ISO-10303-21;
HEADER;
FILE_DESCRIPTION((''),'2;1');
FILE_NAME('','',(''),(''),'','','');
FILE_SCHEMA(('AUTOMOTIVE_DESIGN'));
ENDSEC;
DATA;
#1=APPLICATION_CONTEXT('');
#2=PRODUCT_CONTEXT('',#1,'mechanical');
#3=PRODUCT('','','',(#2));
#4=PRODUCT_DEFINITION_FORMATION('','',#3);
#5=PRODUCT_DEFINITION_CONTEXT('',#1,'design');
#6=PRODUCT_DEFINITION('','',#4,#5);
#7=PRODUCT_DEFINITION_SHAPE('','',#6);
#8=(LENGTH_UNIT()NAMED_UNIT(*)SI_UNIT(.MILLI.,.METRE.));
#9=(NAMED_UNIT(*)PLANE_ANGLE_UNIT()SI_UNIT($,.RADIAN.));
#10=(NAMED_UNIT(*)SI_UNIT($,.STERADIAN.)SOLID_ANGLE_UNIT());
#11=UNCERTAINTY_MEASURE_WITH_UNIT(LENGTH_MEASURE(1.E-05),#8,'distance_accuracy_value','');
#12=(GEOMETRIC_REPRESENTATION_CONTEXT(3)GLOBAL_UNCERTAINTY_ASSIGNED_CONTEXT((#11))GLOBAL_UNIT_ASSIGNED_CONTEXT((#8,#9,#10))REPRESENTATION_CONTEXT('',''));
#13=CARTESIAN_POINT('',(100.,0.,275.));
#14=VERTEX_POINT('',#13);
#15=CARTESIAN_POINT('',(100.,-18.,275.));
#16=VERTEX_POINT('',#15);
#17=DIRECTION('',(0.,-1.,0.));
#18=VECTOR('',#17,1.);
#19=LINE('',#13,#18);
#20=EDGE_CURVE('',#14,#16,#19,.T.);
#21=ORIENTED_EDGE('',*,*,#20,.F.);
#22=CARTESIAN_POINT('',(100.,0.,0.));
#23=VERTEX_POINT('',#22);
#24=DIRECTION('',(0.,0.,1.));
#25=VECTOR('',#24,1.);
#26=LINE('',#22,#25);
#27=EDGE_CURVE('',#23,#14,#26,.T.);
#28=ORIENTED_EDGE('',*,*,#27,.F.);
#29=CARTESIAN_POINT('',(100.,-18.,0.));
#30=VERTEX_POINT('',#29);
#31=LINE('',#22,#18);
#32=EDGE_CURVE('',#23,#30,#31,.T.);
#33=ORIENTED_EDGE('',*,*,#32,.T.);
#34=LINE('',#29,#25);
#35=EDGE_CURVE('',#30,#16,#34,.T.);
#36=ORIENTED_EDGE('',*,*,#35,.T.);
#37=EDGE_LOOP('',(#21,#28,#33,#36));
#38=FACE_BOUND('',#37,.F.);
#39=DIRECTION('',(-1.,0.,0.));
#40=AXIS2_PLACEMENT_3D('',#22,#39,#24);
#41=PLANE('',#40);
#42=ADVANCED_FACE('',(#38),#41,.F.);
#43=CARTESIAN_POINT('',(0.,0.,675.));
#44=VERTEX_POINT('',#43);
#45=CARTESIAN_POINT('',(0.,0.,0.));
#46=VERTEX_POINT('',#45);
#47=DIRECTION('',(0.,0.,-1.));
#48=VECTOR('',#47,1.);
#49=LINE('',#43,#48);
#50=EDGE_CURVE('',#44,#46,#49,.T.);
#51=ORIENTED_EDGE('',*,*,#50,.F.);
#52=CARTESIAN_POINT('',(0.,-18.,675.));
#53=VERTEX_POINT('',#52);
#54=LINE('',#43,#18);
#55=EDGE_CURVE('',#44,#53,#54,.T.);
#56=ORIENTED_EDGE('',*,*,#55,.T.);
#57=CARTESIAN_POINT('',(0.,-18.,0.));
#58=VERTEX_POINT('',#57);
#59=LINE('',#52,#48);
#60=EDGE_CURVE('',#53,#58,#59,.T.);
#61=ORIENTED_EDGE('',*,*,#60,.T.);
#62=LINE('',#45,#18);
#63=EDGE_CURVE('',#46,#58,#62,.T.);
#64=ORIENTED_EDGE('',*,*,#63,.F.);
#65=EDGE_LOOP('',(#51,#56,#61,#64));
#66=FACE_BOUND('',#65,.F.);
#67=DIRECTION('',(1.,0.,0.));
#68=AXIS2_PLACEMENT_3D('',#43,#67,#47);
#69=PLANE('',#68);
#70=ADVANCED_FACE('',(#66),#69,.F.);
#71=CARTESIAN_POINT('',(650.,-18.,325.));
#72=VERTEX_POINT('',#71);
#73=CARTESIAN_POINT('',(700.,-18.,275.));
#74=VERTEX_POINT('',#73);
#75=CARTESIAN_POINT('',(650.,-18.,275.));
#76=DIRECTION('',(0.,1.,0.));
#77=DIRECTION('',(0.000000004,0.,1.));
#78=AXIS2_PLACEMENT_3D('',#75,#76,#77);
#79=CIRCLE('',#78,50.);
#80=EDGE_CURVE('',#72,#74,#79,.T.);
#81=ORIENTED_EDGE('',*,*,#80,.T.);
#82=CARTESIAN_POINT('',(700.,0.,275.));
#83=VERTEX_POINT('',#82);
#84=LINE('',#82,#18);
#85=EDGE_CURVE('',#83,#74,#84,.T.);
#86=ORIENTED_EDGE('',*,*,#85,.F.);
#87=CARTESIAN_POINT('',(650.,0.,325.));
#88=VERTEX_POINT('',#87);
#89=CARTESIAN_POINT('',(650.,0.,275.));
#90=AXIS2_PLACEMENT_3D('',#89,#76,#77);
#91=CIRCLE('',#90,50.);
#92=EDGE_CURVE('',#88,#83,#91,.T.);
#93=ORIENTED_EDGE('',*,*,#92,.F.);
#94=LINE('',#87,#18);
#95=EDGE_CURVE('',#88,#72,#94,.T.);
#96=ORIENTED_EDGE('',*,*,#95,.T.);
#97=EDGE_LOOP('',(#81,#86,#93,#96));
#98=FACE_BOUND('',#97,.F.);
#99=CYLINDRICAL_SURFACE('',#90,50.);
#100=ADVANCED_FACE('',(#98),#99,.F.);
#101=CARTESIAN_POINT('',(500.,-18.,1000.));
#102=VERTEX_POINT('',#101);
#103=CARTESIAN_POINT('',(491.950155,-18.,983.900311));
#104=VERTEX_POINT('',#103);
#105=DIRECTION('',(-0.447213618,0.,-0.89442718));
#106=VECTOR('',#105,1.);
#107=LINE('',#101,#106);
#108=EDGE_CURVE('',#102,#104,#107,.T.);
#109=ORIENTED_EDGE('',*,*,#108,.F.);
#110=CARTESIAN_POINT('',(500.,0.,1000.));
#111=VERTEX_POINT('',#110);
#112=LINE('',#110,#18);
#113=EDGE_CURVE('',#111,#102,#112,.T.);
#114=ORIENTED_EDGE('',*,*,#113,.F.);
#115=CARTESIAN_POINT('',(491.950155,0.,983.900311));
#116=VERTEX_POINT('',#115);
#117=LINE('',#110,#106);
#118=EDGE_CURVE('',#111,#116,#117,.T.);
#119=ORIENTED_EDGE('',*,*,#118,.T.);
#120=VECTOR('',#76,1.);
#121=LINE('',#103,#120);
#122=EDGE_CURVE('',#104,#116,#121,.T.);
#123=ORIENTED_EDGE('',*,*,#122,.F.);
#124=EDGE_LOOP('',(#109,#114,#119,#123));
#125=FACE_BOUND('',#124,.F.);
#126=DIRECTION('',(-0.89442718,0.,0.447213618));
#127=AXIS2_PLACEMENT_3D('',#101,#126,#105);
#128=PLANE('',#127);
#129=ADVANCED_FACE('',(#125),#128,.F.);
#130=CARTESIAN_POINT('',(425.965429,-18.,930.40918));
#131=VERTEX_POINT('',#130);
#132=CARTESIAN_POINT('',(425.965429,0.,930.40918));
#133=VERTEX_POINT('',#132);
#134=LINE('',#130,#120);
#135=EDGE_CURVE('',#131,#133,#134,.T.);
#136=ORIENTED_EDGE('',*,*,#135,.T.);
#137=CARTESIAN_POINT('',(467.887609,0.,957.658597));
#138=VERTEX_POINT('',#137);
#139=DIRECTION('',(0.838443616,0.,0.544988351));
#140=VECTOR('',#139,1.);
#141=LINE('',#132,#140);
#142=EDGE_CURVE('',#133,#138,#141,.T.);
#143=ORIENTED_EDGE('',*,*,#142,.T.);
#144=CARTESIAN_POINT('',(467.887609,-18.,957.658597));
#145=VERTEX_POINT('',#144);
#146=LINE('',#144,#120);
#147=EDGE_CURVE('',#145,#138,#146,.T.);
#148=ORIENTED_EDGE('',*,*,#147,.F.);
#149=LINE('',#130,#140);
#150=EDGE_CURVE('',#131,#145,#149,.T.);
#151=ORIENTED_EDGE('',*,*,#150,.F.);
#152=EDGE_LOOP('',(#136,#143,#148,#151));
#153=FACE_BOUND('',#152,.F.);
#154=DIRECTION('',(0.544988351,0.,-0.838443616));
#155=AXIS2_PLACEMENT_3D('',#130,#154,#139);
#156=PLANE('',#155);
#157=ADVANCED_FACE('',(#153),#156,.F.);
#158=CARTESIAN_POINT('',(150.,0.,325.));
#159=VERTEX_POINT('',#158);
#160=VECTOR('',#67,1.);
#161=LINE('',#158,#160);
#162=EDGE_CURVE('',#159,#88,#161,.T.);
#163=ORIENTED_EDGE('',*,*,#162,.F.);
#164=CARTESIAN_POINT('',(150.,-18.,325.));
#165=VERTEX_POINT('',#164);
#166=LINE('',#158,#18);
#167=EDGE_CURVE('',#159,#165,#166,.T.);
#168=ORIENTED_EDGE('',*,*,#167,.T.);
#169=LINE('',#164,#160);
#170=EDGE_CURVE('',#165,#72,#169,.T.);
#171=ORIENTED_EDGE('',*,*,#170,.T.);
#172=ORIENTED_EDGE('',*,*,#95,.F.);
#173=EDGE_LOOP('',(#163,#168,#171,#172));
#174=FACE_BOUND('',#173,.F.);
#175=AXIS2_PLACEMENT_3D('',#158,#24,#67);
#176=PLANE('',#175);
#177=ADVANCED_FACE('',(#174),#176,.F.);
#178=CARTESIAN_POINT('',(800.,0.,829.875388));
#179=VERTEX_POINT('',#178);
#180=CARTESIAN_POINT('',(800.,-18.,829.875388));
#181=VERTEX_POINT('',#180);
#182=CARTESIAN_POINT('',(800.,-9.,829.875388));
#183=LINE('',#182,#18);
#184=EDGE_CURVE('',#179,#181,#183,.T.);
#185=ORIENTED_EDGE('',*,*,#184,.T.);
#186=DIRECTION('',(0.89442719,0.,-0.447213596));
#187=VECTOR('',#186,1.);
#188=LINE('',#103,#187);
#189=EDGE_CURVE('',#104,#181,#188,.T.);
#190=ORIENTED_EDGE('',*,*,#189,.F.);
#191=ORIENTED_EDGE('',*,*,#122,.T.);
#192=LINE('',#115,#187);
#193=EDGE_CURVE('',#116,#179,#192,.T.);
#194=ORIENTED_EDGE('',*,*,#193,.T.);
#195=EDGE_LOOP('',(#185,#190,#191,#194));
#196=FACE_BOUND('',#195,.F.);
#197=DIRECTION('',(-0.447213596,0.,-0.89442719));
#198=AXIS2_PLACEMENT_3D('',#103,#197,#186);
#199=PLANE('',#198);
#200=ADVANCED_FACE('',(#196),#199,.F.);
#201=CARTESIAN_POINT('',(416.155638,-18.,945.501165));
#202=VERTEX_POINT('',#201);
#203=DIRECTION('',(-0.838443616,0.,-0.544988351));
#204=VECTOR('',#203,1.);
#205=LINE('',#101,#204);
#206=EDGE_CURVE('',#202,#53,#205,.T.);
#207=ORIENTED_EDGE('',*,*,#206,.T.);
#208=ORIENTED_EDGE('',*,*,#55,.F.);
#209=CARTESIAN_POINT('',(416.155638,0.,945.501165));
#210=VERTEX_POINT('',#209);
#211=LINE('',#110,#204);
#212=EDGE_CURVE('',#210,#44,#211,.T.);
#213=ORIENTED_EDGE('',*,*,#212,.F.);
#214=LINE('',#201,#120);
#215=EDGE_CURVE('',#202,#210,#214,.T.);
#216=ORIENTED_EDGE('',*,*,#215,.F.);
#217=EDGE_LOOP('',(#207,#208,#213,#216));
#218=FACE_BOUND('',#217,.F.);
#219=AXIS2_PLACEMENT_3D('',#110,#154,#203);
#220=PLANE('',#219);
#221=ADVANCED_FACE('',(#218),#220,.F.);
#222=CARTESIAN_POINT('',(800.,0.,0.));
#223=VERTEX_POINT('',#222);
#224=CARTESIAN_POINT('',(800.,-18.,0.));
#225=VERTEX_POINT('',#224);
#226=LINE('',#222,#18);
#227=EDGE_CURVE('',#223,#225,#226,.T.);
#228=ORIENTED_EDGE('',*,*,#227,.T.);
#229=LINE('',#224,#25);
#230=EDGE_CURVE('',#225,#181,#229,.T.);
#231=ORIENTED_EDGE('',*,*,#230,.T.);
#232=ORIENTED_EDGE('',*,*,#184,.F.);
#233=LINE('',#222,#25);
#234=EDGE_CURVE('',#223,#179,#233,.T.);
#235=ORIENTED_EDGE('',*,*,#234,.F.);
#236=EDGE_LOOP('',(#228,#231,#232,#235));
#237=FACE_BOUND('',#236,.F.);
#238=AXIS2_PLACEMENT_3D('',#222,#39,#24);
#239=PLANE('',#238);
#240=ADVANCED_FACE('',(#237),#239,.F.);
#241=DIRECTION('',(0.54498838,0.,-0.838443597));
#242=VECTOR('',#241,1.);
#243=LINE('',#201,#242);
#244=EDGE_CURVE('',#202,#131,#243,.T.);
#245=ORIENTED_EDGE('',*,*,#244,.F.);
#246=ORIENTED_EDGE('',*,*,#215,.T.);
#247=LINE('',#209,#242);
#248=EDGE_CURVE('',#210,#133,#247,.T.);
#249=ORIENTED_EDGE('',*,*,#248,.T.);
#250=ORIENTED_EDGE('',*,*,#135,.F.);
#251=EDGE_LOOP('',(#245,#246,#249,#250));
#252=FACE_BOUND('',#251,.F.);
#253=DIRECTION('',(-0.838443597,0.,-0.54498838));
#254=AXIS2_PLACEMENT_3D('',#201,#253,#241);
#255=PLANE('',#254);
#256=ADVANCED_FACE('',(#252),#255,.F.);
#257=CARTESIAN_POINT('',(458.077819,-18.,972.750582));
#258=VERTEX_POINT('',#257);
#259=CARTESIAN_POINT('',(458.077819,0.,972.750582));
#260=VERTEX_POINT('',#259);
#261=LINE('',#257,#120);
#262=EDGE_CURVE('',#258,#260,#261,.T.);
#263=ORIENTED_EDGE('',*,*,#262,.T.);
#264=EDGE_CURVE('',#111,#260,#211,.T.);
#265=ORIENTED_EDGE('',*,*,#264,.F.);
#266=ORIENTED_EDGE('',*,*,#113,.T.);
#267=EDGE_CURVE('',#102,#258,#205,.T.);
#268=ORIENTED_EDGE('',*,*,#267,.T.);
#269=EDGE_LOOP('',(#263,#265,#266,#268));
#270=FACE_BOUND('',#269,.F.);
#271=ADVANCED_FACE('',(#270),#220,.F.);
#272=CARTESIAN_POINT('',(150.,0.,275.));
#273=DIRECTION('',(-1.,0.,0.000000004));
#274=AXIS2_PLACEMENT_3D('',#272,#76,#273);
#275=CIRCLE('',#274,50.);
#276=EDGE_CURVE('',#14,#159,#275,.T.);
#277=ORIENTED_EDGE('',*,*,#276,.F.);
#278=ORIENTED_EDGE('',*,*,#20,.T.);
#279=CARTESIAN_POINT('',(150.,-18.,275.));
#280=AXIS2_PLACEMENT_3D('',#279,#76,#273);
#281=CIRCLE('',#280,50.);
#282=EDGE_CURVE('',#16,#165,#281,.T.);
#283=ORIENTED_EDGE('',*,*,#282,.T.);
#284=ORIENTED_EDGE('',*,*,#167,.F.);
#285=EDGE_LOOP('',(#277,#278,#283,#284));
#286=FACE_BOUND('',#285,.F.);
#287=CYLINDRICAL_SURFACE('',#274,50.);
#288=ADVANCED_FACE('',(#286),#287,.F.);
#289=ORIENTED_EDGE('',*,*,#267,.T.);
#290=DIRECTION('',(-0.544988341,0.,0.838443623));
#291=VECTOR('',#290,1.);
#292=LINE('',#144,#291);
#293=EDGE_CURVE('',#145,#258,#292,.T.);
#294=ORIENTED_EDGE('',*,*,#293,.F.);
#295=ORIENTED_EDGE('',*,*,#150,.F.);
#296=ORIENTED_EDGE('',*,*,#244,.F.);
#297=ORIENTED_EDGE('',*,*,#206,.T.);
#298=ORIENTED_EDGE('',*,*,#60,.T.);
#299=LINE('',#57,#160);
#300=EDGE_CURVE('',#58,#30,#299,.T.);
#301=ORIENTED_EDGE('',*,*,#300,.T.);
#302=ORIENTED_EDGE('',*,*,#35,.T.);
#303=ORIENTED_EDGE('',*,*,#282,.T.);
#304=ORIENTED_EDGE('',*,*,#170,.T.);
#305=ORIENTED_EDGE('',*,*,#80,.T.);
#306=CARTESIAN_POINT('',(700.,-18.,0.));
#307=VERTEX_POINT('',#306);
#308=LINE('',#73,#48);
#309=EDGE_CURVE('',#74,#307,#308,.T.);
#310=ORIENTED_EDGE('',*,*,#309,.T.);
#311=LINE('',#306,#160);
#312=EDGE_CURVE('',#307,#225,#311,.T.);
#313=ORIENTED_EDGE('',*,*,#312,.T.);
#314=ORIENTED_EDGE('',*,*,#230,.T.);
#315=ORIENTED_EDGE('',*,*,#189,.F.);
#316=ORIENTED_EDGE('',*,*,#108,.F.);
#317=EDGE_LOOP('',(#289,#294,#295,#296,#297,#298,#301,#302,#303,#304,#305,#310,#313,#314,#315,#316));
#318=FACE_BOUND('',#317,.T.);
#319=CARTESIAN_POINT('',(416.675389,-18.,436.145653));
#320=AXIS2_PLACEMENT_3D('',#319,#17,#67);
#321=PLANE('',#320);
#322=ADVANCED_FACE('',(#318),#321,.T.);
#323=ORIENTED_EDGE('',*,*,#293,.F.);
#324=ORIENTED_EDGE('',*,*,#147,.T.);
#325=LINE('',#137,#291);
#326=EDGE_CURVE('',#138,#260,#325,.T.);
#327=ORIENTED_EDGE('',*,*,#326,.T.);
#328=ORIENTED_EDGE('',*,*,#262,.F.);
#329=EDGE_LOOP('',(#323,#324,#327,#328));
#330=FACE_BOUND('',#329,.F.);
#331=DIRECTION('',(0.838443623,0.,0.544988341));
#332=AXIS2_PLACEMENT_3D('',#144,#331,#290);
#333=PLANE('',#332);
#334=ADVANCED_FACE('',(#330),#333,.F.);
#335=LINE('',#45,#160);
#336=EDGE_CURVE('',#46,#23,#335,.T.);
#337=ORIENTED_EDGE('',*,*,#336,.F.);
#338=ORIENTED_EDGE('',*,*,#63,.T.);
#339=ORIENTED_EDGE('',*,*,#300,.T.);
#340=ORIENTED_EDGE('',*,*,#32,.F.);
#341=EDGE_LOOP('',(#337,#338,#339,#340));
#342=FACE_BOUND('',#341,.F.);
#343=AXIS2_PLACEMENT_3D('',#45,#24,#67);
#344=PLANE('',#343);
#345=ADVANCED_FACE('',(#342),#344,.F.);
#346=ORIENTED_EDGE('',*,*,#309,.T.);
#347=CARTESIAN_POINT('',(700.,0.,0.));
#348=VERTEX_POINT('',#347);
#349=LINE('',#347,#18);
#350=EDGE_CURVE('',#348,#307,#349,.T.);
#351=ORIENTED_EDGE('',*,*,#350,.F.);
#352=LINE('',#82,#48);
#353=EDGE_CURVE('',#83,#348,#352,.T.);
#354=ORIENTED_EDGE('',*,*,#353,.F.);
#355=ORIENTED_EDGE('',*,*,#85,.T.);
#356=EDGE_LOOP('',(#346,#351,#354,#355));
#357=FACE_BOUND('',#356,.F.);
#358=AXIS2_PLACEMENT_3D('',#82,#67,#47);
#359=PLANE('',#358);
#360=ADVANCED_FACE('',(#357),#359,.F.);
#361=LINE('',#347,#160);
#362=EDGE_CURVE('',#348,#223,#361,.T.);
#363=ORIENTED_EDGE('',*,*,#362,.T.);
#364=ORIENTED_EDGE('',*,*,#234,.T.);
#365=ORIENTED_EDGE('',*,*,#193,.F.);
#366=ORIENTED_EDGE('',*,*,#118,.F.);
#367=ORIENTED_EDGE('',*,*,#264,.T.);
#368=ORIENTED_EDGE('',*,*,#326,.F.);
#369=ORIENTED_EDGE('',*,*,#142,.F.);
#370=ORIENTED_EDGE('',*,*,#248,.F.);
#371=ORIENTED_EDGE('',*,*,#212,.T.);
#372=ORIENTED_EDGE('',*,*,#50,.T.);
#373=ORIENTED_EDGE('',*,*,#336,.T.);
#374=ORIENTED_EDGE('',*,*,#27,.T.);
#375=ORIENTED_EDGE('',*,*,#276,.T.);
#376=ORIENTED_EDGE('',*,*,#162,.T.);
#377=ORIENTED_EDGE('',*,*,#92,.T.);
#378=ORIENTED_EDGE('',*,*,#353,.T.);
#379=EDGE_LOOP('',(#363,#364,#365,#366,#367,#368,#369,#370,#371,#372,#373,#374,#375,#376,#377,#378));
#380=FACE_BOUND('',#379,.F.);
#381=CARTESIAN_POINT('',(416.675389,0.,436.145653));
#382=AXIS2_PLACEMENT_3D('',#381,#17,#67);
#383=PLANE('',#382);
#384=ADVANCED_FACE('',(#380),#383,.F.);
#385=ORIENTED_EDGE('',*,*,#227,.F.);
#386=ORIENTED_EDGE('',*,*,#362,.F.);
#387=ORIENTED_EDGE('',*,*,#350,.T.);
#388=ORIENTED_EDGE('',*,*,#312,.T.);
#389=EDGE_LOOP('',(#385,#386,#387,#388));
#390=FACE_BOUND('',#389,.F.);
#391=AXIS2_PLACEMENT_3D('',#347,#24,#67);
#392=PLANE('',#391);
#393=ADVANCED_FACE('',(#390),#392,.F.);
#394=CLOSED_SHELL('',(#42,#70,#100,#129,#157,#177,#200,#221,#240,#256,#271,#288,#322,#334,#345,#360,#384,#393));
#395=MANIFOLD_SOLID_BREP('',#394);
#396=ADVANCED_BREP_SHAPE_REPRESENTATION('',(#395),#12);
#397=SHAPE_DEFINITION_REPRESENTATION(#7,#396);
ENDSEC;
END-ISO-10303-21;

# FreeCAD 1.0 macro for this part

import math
import FreeCAD as App
import Part
import Sketcher

doc = App.newDocument("Part")
body = doc.addObject("PartDesign::Body", "Body")

# Sketch on XZ plane
sketch1 = body.newObject("Sketcher::SketchObject", "Sketch")
sketch1.AttachmentSupport = (doc.getObject("XZ_Plane"), [""])
sketch1.MapMode = "FlatFace"
sketch1.addGeometry([
    Part.LineSegment(App.Vector(0, 675, 0), App.Vector(0, 0, 0)),  # 0
    Part.LineSegment(App.Vector(0, 0, 0), App.Vector(100, 0, 0)),  # 1
    Part.LineSegment(App.Vector(100, 0, 0), App.Vector(100, 275, 0)),  # 2
    Part.ArcOfCircle(Part.Circle(App.Vector(150, 275, 0), App.Vector(0, 0, 1), 50), math.radians(90), math.radians(180)),  # 3
    Part.LineSegment(App.Vector(150, 325, 0), App.Vector(650, 325, 0)),  # 4
    Part.ArcOfCircle(Part.Circle(App.Vector(650, 275, 0), App.Vector(0, 0, 1), 50), math.radians(0), math.radians(90)),  # 5
    Part.LineSegment(App.Vector(700, 275, 0), App.Vector(700, 0, 0)),  # 6
    Part.LineSegment(App.Vector(700, 0, 0), App.Vector(800, 0, 0)),  # 7
    Part.LineSegment(App.Vector(800, 0, 0), App.Vector(800, 850, 0)),  # 8
    Part.LineSegment(App.Vector(800, 850, 0), App.Vector(500, 1000, 0)),  # 9
    Part.LineSegment(App.Vector(500, 1000, 0), App.Vector(0, 675, 0)),  # 10
], False)
sketch1.addConstraint([
    Sketcher.Constraint("Coincident", 0, 2, 1, 1),
    Sketcher.Constraint("Coincident", 1, 2, 2, 1),
    Sketcher.Constraint("Tangent", 2, 2, 3, 2),
    Sketcher.Constraint("Tangent", 3, 1, 4, 1),
    Sketcher.Constraint("Tangent", 4, 2, 5, 2),
    Sketcher.Constraint("Tangent", 5, 1, 6, 1),
    Sketcher.Constraint("Coincident", 6, 2, 7, 1),
    Sketcher.Constraint("Coincident", 7, 2, 8, 1),
    Sketcher.Constraint("Coincident", 8, 2, 9, 1),
    Sketcher.Constraint("Coincident", 9, 2, 10, 1),
    Sketcher.Constraint("Coincident", 10, 2, 0, 1),
    Sketcher.Constraint("Vertical", 0),
    Sketcher.Constraint("Horizontal", 1),
    Sketcher.Constraint("Vertical", 2),
    Sketcher.Constraint("Horizontal", 4),
    Sketcher.Constraint("Vertical", 6),
    Sketcher.Constraint("Horizontal", 7),
    Sketcher.Constraint("Vertical", 8),
    Sketcher.Constraint("Coincident", 0, 2, -1, 1),
    Sketcher.Constraint("Equal", 3, 5),
    Sketcher.Constraint("PointOnObject", 6, 2, -1),
    Sketcher.Constraint("Equal", 1, 7),
    Sketcher.Constraint("Radius", 3, 50.0),
    Sketcher.Constraint("DistanceX", 1, 1, 1, 2, 100.0),
    Sketcher.Constraint("DistanceX", 4, 1, 4, 2, 500.0),
    Sketcher.Constraint("DistanceY", 0, 2, 0, 1, 675.0),
    Sketcher.Constraint("DistanceY", 2, 1, 2, 2, 275.0),
    Sketcher.Constraint("DistanceY", 8, 1, 8, 2, 850.0),
    Sketcher.Constraint("DistanceX", -1, 1, 9, 2, 500.0),
    Sketcher.Constraint("DistanceY", -1, 1, 9, 2, 1000.0),
])
pad1 = body.newObject("PartDesign::Pad", "Pad")
pad1.Profile = sketch1
pad1.Length = 18

# Sketch on XZ plane
sketch2 = body.newObject("Sketcher::SketchObject", "Sketch001")
sketch2.AttachmentSupport = (doc.getObject("XZ_Plane"), [""])
sketch2.MapMode = "FlatFace"
sketch2.AttachmentOffset = App.Placement(App.Vector(0, 0, 18), App.Rotation())
sketch2.addGeometry([
    Part.LineSegment(App.Vector(458, 973, 0), App.Vector(416, 946, 0)),
    Part.LineSegment(App.Vector(416, 946, 0), App.Vector(426, 930, 0)),
    Part.LineSegment(App.Vector(426, 930, 0), App.Vector(468, 958, 0)),
    Part.LineSegment(App.Vector(468, 958, 0), App.Vector(458, 973, 0)),
], False)
sketch2.addConstraint([
    Sketcher.Constraint("Coincident", 0, 2, 1, 1),
    Sketcher.Constraint("Coincident", 1, 2, 2, 1),
    Sketcher.Constraint("Coincident", 2, 2, 3, 1),
    Sketcher.Constraint("Coincident", 3, 2, 0, 1),
    Sketcher.Constraint("Perpendicular", 0, 1),
    Sketcher.Constraint("Perpendicular", 1, 2),
    Sketcher.Constraint("Perpendicular", 2, 3),
    Sketcher.Constraint("Distance", 0, 50.0),
    Sketcher.Constraint("Distance", 1, 18.0),
    Sketcher.Constraint("DistanceX", -1, 1, 0, 2, 416.155638),
    Sketcher.Constraint("DistanceX", -1, 1, 1, 2, 425.965429),
    Sketcher.Constraint("DistanceY", -1, 1, 1, 2, 930.40918),
])
pocket1 = body.newObject("PartDesign::Pocket", "Pocket")
pocket1.Profile = sketch2
pocket1.Length = 18

# Sketch on XZ plane
sketch3 = body.newObject("Sketcher::SketchObject", "Sketch002")
sketch3.AttachmentSupport = (doc.getObject("XZ_Plane"), [""])
sketch3.MapMode = "FlatFace"
sketch3.AttachmentOffset = App.Placement(App.Vector(0, 0, 18), App.Rotation())
sketch3.addGeometry([
    Part.LineSegment(App.Vector(500, 1000, 0), App.Vector(491.950155, 983.900311, 0)),
    Part.LineSegment(App.Vector(491.950155, 983.900311, 0), App.Vector(849.721032, 805.014872, 0)),
    Part.LineSegment(App.Vector(849.721032, 805.014872, 0), App.Vector(857.770876, 821.114562, 0)),
    Part.LineSegment(App.Vector(857.770876, 821.114562, 0), App.Vector(500, 1000, 0)),
], False)
sketch3.addConstraint([
    Sketcher.Constraint("Coincident", 0, 2, 1, 1),
    Sketcher.Constraint("Coincident", 1, 2, 2, 1),
    Sketcher.Constraint("Coincident", 2, 2, 3, 1),
    Sketcher.Constraint("Coincident", 3, 2, 0, 1),
    Sketcher.Constraint("Perpendicular", 0, 1),
    Sketcher.Constraint("Perpendicular", 1, 2),
    Sketcher.Constraint("Perpendicular", 2, 3),
    Sketcher.Constraint("Distance", 0, 18.0),
    Sketcher.Constraint("Distance", 1, 400.000001),
    Sketcher.Constraint("DistanceX", -1, 1, 3, 2, 500.0),
    Sketcher.Constraint("DistanceY", -1, 1, 3, 2, 1000.0),
    Sketcher.Constraint("DistanceY", -1, 1, 0, 2, 983.900311),
])
pocket2 = body.newObject("PartDesign::Pocket", "Pocket001")
pocket2.Profile = sketch3
pocket2.Type = "ThroughAll"

doc.recompute()
